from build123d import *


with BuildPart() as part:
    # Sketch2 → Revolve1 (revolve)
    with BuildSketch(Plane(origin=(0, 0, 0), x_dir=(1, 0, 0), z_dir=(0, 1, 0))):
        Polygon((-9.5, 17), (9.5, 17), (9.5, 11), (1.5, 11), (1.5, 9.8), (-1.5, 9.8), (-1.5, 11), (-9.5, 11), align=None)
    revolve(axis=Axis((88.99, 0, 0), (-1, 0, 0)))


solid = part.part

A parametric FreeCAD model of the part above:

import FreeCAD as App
import Part
import Sketcher

doc = App.newDocument("Part")
body = doc.addObject("PartDesign::Body", "Body")

sketch1 = body.newObject("Sketcher::SketchObject", "Sketch")
sketch1.AttachmentSupport = (doc.getObject("XZ_Plane"), [""])
sketch1.MapMode = "FlatFace"
sketch1.addGeometry([
    Part.LineSegment(App.Vector(9.5, -17, 0), App.Vector(-9.5, -17, 0)),
    Part.LineSegment(App.Vector(-9.5, -17, 0), App.Vector(-9.5, -11, 0)),
    Part.LineSegment(App.Vector(-9.5, -11, 0), App.Vector(-1.5, -11, 0)),
    Part.LineSegment(App.Vector(-1.5, -11, 0), App.Vector(-1.5, -9.8, 0)),
    Part.LineSegment(App.Vector(-1.5, -9.8, 0), App.Vector(1.5, -9.8, 0)),
    Part.LineSegment(App.Vector(1.5, -9.8, 0), App.Vector(1.5, -11, 0)),
    Part.LineSegment(App.Vector(1.5, -11, 0), App.Vector(9.5, -11, 0)),
    Part.LineSegment(App.Vector(9.5, -11, 0), App.Vector(9.5, -17, 0)),
], False)
sketch1.addConstraint([
    Sketcher.Constraint("Coincident", 0, 2, 1, 1),
    Sketcher.Constraint("Coincident", 1, 2, 2, 1),
    Sketcher.Constraint("Coincident", 2, 2, 3, 1),
    Sketcher.Constraint("Coincident", 3, 2, 4, 1),
    Sketcher.Constraint("Coincident", 4, 2, 5, 1),
    Sketcher.Constraint("Coincident", 5, 2, 6, 1),
    Sketcher.Constraint("Coincident", 6, 2, 7, 1),
    Sketcher.Constraint("Coincident", 7, 2, 0, 1),
    Sketcher.Constraint("Horizontal", 0),
    Sketcher.Constraint("Vertical", 1),
    Sketcher.Constraint("Horizontal", 2),
    Sketcher.Constraint("Vertical", 3),
    Sketcher.Constraint("Horizontal", 4),
    Sketcher.Constraint("Vertical", 5),
    Sketcher.Constraint("Horizontal", 6),
    Sketcher.Constraint("Vertical", 7),
    Sketcher.Constraint("Symmetric", 2, 2, 5, 2, -2),
    Sketcher.Constraint("Equal", 2, 6),
    Sketcher.Constraint("DistanceX", 0, 2, 0, 1, 19.0),
    Sketcher.Constraint("DistanceX", 2, 1, 2, 2, 8.0),
    Sketcher.Constraint("DistanceY", 1, 1, 1, 2, 6.0),
    Sketcher.Constraint("DistanceY", 3, 1, 3, 2, 1.2),
    Sketcher.Constraint("DistanceY", 0, 2, -1, 1, 17.0),
])
revolution = body.newObject("PartDesign::Revolution", "Revolution")
revolution.Profile = sketch1
revolution.ReferenceAxis = (sketch1, ["H_Axis"])
revolution.Angle = 360

doc.recompute()
